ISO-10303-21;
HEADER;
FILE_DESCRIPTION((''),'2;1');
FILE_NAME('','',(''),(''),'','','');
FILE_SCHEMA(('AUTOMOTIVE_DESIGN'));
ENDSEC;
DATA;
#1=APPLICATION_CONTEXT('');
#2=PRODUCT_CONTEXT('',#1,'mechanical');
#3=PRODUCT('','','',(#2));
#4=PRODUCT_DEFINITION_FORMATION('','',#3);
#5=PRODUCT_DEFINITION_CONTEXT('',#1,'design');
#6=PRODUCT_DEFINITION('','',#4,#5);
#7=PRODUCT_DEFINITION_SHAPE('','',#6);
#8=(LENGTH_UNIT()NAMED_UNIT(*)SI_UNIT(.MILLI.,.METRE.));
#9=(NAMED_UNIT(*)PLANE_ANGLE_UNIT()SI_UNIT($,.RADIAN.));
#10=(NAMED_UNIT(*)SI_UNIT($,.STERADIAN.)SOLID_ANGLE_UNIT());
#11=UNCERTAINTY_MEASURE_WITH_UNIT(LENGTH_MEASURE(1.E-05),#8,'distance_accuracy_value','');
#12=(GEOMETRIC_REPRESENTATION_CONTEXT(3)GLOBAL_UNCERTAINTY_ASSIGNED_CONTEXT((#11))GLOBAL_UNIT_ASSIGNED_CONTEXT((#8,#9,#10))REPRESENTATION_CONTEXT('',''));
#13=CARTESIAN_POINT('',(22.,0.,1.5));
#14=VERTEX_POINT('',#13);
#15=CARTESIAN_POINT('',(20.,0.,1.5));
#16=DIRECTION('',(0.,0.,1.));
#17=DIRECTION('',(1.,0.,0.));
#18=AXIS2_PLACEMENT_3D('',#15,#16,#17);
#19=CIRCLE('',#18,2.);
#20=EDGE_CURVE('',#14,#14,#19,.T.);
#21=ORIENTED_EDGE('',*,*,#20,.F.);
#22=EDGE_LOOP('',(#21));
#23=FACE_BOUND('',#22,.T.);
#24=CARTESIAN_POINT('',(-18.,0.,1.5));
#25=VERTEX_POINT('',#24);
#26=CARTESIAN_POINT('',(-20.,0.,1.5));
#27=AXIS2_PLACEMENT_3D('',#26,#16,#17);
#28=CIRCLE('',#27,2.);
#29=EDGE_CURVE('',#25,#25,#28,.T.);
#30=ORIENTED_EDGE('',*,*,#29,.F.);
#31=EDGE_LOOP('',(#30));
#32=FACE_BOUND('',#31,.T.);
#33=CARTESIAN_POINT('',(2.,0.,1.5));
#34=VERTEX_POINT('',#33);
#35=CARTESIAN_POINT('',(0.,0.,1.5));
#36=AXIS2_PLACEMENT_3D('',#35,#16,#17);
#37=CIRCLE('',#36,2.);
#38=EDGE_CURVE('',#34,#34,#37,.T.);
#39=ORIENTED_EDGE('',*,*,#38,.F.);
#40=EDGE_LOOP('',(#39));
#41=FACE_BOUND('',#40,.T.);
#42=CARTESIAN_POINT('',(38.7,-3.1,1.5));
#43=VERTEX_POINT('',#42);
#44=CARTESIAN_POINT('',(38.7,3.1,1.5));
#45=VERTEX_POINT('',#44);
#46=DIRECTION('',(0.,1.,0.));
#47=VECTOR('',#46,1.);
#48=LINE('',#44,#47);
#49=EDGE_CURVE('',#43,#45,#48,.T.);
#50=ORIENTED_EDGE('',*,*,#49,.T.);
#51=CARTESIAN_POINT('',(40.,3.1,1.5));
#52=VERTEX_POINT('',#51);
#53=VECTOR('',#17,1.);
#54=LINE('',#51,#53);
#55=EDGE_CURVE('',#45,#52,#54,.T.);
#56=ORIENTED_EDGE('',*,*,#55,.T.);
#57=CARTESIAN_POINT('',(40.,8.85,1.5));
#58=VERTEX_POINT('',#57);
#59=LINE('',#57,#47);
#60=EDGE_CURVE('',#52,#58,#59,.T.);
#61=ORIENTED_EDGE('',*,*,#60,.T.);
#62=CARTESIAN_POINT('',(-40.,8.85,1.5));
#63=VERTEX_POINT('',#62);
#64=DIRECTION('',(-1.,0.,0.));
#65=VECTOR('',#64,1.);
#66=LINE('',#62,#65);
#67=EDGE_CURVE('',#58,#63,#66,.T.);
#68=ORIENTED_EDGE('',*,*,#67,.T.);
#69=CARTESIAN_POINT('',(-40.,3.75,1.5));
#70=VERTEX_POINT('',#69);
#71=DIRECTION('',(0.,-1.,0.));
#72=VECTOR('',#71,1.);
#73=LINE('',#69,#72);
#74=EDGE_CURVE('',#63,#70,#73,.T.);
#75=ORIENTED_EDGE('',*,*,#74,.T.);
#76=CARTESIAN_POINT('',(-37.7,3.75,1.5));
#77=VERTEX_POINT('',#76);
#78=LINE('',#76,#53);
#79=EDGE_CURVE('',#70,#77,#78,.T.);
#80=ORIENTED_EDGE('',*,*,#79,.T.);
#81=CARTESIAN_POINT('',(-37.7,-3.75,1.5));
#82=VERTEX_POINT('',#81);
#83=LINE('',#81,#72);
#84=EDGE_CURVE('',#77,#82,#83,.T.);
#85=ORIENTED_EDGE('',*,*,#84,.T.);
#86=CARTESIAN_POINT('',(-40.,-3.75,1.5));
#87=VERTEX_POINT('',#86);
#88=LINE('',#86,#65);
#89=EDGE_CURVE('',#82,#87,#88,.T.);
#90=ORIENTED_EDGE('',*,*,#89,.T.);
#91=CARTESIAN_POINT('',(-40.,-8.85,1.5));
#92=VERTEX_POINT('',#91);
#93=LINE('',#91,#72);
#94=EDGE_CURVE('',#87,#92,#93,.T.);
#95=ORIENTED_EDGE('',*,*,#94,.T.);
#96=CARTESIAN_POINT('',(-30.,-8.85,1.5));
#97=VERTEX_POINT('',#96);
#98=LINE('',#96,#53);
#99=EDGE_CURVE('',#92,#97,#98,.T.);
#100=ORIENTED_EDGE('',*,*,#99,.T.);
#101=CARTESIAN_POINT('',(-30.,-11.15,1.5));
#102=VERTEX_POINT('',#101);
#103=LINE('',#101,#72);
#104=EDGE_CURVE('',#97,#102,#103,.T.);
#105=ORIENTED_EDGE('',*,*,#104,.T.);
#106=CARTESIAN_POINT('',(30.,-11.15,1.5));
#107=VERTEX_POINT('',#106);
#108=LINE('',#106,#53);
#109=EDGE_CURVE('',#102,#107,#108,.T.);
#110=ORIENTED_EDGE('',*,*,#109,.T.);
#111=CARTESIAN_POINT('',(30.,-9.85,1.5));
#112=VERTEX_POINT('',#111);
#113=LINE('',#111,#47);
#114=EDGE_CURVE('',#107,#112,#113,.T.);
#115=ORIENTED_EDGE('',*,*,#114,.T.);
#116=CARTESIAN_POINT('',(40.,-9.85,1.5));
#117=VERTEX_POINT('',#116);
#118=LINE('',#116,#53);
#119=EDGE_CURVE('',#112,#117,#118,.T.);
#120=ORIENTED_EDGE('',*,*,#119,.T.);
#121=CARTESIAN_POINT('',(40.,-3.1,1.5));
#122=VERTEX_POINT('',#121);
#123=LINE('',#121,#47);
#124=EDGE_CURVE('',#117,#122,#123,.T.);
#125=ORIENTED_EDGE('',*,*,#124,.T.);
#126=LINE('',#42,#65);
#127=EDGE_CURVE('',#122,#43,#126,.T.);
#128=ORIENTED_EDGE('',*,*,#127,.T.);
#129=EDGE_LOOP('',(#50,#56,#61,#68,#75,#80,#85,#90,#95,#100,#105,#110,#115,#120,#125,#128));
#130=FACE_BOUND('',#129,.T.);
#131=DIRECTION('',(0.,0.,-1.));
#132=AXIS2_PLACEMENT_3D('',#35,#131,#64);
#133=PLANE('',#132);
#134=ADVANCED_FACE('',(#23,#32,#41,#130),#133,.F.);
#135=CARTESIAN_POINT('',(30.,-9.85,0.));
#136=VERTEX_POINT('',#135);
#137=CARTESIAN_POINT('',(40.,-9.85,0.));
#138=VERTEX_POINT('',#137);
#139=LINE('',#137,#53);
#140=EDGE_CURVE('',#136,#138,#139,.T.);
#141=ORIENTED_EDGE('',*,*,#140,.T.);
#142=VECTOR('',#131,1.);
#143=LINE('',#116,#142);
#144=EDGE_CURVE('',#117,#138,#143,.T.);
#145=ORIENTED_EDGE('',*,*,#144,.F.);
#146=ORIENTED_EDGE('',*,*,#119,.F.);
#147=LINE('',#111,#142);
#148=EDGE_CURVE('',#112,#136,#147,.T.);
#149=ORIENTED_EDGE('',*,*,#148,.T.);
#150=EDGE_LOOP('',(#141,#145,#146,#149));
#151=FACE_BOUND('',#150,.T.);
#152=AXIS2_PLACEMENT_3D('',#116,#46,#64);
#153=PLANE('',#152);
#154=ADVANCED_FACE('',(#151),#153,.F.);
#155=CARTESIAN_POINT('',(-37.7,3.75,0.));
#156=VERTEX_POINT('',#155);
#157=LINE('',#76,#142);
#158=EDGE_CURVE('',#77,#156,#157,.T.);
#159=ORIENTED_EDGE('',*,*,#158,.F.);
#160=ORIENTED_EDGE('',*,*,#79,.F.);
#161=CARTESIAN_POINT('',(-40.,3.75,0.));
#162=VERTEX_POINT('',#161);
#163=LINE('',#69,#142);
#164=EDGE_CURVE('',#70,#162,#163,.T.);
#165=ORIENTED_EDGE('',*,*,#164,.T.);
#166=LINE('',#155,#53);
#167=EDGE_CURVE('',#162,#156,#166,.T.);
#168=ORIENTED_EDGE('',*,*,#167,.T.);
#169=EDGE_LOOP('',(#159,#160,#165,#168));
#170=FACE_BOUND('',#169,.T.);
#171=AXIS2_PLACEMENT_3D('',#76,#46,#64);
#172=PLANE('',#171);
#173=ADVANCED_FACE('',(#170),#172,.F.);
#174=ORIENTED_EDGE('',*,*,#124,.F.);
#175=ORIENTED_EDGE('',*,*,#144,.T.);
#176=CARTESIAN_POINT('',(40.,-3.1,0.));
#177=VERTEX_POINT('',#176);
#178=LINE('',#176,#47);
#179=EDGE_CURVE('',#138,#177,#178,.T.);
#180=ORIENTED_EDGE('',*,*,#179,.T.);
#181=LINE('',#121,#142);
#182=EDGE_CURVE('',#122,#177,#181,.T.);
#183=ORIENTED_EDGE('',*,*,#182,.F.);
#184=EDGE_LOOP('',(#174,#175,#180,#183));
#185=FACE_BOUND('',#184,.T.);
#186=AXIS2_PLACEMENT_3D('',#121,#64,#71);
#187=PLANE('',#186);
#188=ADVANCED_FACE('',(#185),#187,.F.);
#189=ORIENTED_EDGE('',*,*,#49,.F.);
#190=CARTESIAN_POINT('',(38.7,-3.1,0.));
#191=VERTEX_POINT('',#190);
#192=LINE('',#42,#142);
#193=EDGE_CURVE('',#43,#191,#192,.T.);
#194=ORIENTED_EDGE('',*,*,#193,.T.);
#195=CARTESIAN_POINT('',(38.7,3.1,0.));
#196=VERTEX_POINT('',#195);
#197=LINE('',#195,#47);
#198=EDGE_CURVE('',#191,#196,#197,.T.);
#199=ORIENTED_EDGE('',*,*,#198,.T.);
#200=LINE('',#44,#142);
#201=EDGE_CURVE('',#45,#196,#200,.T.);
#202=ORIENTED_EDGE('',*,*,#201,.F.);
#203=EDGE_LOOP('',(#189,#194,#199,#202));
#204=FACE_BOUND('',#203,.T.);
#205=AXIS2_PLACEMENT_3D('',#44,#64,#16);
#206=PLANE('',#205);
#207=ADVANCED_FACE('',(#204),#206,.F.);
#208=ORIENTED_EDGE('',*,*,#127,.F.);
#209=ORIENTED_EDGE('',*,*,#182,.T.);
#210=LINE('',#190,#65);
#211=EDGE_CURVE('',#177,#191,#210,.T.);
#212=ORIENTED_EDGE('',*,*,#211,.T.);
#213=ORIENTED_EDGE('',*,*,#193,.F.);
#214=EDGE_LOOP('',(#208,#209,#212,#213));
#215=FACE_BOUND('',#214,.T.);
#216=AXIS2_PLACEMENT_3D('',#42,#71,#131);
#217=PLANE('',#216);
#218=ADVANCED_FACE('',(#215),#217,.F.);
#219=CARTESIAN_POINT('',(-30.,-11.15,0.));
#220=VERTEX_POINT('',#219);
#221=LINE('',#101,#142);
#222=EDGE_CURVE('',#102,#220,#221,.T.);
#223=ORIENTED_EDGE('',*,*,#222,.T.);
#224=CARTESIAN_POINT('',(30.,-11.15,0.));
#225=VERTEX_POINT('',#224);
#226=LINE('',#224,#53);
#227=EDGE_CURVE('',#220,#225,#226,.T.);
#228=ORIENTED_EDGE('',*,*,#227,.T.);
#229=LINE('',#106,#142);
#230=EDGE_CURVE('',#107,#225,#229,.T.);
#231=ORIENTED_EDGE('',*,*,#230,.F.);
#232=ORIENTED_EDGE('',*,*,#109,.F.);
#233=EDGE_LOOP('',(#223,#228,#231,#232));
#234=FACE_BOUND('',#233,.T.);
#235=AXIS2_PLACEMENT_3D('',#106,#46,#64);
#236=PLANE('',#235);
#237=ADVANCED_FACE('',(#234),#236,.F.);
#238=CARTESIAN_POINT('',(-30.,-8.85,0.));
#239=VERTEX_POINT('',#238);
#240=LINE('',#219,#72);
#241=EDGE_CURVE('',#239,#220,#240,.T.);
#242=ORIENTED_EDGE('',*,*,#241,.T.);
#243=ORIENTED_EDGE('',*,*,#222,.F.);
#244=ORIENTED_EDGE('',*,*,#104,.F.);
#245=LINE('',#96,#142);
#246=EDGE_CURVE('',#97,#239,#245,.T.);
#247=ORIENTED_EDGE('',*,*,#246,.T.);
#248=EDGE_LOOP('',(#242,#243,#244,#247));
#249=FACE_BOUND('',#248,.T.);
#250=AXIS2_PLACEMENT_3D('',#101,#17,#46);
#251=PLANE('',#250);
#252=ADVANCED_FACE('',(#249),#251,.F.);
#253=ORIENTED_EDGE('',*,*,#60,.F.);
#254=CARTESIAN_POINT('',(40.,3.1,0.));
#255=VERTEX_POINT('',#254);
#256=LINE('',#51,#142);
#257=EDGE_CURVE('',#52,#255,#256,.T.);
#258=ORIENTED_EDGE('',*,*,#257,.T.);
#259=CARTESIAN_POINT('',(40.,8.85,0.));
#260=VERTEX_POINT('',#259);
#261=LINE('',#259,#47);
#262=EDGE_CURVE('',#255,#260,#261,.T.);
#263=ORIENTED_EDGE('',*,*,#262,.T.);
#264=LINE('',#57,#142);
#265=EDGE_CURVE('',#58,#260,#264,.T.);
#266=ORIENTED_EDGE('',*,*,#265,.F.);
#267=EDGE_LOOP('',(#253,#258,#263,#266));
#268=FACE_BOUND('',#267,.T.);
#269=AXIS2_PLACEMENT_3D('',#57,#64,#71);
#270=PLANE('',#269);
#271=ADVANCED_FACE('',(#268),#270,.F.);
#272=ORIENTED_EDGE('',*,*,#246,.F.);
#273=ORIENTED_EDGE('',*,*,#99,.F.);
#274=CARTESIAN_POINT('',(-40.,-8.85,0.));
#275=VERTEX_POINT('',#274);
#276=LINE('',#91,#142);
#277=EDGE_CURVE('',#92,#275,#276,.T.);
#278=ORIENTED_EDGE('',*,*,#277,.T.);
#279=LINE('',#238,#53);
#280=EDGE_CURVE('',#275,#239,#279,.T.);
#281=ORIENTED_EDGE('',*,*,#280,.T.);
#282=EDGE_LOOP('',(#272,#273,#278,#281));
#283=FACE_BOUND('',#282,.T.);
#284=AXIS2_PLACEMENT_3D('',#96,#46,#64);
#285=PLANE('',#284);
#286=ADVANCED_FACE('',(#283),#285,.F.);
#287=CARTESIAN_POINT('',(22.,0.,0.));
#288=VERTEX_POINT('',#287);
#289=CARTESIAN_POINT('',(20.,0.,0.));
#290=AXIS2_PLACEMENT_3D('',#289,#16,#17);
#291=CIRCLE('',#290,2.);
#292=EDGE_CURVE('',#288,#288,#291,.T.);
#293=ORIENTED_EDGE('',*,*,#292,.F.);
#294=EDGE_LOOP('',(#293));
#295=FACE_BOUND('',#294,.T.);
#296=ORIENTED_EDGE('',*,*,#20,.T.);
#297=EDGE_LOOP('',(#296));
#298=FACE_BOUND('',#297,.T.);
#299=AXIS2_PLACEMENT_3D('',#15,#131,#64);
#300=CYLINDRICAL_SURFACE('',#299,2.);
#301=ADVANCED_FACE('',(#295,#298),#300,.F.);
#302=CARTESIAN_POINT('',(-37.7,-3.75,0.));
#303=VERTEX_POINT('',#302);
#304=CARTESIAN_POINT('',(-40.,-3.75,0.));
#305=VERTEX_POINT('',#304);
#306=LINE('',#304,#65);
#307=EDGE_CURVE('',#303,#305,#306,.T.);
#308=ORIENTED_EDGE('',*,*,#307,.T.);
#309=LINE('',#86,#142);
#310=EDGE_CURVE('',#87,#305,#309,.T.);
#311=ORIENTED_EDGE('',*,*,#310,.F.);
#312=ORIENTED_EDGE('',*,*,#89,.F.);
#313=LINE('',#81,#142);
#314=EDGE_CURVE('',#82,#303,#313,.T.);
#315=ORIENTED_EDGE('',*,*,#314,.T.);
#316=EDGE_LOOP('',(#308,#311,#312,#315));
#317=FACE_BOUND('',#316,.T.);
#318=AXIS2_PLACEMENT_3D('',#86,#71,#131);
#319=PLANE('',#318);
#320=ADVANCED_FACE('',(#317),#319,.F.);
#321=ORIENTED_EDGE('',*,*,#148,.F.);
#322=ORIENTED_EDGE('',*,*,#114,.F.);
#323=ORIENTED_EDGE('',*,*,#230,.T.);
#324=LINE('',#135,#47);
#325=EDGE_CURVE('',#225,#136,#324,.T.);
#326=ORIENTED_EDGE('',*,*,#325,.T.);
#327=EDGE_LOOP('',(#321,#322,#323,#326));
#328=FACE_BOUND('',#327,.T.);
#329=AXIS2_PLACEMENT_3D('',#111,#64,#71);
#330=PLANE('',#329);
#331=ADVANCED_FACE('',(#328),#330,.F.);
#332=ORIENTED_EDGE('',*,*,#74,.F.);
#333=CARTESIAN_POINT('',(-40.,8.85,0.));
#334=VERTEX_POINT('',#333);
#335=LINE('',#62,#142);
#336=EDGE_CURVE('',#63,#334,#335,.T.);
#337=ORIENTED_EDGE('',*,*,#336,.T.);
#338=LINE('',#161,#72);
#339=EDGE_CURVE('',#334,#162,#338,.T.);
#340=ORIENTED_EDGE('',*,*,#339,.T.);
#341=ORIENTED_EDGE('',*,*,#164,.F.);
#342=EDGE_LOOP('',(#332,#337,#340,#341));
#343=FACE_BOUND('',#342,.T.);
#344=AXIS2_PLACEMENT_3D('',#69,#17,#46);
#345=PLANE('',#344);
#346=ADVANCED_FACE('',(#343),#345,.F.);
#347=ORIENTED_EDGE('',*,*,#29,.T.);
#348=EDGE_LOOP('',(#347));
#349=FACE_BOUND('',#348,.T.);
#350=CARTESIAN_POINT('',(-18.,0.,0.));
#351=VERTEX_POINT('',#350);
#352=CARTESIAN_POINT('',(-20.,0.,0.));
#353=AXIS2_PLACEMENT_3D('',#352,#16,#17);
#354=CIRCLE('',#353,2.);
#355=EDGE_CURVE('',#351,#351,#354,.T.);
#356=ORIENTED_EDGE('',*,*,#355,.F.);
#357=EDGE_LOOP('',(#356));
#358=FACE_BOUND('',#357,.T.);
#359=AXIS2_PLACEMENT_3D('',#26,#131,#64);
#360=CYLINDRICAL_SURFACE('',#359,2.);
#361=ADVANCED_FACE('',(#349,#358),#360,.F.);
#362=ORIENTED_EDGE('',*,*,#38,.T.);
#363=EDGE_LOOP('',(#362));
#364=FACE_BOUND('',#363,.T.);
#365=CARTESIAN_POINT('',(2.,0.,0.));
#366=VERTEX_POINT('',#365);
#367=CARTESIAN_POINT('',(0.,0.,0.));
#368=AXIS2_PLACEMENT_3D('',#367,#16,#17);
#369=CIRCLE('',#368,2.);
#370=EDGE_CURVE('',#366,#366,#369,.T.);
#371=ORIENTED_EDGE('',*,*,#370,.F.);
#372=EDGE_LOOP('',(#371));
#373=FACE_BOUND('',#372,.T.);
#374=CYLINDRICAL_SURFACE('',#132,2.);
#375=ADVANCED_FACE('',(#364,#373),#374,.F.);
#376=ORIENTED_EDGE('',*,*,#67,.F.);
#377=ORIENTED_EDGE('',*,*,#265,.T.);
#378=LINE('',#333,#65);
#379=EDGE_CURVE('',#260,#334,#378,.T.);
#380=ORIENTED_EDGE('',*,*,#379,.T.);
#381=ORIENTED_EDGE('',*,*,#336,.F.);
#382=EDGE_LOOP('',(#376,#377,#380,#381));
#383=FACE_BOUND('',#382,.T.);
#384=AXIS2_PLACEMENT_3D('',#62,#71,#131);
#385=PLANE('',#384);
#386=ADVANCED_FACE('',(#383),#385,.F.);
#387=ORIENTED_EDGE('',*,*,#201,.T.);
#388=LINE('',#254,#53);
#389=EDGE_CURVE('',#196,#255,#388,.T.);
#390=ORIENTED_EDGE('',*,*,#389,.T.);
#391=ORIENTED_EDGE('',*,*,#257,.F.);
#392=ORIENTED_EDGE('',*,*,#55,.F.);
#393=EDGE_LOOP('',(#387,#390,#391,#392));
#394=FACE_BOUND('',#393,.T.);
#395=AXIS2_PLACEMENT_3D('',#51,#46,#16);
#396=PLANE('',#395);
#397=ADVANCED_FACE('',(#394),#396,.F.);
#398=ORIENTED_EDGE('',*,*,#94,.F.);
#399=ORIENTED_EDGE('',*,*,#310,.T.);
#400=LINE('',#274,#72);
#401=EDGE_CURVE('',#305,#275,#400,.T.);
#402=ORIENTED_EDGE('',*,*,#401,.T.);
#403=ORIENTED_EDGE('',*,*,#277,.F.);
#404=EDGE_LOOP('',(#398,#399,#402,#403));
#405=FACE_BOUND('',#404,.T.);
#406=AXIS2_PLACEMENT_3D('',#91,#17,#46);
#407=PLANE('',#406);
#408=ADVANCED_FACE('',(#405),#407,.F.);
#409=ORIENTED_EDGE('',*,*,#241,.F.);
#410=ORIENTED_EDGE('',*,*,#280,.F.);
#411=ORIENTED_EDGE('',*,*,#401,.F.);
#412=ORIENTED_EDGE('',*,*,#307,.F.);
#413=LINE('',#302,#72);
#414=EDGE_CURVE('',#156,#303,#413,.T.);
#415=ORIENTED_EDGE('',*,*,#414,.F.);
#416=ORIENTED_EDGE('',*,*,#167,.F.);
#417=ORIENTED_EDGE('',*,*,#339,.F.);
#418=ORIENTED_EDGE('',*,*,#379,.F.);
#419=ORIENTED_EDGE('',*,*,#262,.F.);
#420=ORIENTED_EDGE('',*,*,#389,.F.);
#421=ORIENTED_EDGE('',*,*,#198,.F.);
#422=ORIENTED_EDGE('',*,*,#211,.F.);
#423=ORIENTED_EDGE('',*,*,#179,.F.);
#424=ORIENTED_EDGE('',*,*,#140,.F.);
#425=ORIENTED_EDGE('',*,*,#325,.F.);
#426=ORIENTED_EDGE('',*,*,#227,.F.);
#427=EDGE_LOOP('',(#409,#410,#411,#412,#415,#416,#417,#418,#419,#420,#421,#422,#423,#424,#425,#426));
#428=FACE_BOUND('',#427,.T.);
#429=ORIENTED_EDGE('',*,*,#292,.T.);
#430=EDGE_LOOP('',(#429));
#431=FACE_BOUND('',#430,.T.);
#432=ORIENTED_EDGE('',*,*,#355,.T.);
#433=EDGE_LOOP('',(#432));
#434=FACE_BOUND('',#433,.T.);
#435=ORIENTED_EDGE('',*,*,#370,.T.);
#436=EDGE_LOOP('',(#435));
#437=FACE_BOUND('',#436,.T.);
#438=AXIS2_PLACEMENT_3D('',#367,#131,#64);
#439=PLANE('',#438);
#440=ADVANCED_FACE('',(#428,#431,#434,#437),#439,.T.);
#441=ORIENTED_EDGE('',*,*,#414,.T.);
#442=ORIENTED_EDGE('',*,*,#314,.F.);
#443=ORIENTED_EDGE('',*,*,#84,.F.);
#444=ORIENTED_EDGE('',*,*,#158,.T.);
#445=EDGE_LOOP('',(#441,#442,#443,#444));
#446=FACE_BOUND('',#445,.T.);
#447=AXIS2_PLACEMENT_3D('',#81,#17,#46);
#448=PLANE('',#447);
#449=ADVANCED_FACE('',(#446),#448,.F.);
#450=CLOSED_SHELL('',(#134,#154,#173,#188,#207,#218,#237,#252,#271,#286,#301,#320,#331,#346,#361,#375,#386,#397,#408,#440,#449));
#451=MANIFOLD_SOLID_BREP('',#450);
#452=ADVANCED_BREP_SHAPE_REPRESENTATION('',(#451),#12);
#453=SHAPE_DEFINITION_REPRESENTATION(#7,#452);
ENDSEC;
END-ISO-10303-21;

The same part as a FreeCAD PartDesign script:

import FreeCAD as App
import Part
import Sketcher
Q = App.Units.Quantity


def add_polygon(sketch, points):
    """Adds a closed chain of lines whose ends are joined by coincident constraints."""
    first, n = sketch.GeometryCount, len(points)
    for a, b in zip(points, points[1:] + points[:1]):
        sketch.addGeometry(Part.LineSegment(App.Vector(*a, 0), App.Vector(*b, 0)), False)
    for i in range(n):
        sketch.addConstraint(Sketcher.Constraint("Coincident", first + i, 2, first + (i + 1) % n, 1))

doc = App.newDocument("Part")
body = doc.addObject("PartDesign::Body", "Body")

sketch1 = body.newObject("Sketcher::SketchObject", "Sketch")
sketch1.AttachmentSupport = (doc.getObject("XY_Plane"), [""])
sketch1.MapMode = "FlatFace"
add_polygon(sketch1, [(40, 8.85), (-40, 8.85), (-40, 3.75), (-37.7, 3.75), (-37.7, -3.75), (-40, -3.75), (-40, -8.85), (-30, -8.85), (-30, -11.15), (30, -11.15), (30, -9.85), (40, -9.85), (40, -3.1), (38.7, -3.1), (38.7, 3.1), (40, 3.1)])
sketch1.addGeometry(Part.Circle(App.Vector(20, 0, 0), App.Vector(0, 0, 1), 2), False)
sketch1.addGeometry(Part.Circle(App.Vector(0, 0, 0), App.Vector(0, 0, 1), 2), False)
sketch1.addGeometry(Part.Circle(App.Vector(-20, 0, 0), App.Vector(0, 0, 1), 2), False)
sketch1.addConstraint(Sketcher.Constraint("Horizontal", 0))
sketch1.addConstraint(Sketcher.Constraint("Vertical", 1))
sketch1.addConstraint(Sketcher.Constraint("Horizontal", 2))
sketch1.addConstraint(Sketcher.Constraint("Vertical", 3))
sketch1.addConstraint(Sketcher.Constraint("Horizontal", 4))
sketch1.addConstraint(Sketcher.Constraint("Vertical", 5))
sketch1.addConstraint(Sketcher.Constraint("Horizontal", 6))
sketch1.addConstraint(Sketcher.Constraint("Vertical", 7))
sketch1.addConstraint(Sketcher.Constraint("Horizontal", 8))
sketch1.addConstraint(Sketcher.Constraint("Vertical", 9))
sketch1.addConstraint(Sketcher.Constraint("Horizontal", 10))
sketch1.addConstraint(Sketcher.Constraint("Vertical", 11))
sketch1.addConstraint(Sketcher.Constraint("Horizontal", 12))
sketch1.addConstraint(Sketcher.Constraint("Vertical", 13))
sketch1.addConstraint(Sketcher.Constraint("Horizontal", 14))
sketch1.addConstraint(Sketcher.Constraint("Vertical", 15))
sketch1.addConstraint(Sketcher.Constraint("Coincident", 17, 3, -1, 1))
sketch1.addConstraint(Sketcher.Constraint("Equal", 16, 17))
sketch1.addConstraint(Sketcher.Constraint("Equal", 17, 18))
sketch1.addConstraint(Sketcher.Constraint("Symmetric", 16, 3, 18, 3, -1, 1))
sketch1.addConstraint(Sketcher.Constraint("Symmetric", 5, 2, 15, 2, -1, 1))
sketch1.addConstraint(Sketcher.Constraint("Symmetric", 1, 2, 4, 2, -1))
sketch1.addConstraint(Sketcher.Constraint("Symmetric", 11, 2, 14, 2, -1))
sketch1.addConstraint(Sketcher.Constraint("PointOnObject", 16, 3, -1))
sketch1.addConstraint(Sketcher.Constraint("Equal", 6, 10))
sketch1.addConstraint(Sketcher.Constraint("Equal", 4, 7))
sketch1.addConstraint(Sketcher.Constraint("Equal", 14, 9))
sketch1.addConstraint(Sketcher.Constraint("Diameter", 16, Q("4 mm")))
sketch1.addConstraint(Sketcher.Constraint("DistanceX", 0, 2, 0, 1, Q("80 mm")))
sketch1.addConstraint(Sketcher.Constraint("DistanceX", 6, 1, 6, 2, Q("10 mm")))
sketch1.addConstraint(Sketcher.Constraint("DistanceX", 2, 1, 2, 2, Q("2.3 mm")))
sketch1.addConstraint(Sketcher.Constraint("DistanceX", 12, 2, 12, 1, Q("1.3 mm")))
sketch1.addConstraint(Sketcher.Constraint("DistanceY", 1, 2, 1, 1, Q("5.1 mm")))
sketch1.addConstraint(Sketcher.Constraint("DistanceY", 3, 2, 3, 1, Q("7.5 mm")))
sketch1.addConstraint(Sketcher.Constraint("DistanceY", 13, 1, 13, 2, Q("6.2 mm")))
sketch1.addConstraint(Sketcher.Constraint("DistanceX", -1, 1, 16, 3, Q("20 mm")))
pad1 = body.newObject("PartDesign::Pad", "Pad")
pad1.Profile = sketch1
pad1.Length = 1.5

doc.recompute()
